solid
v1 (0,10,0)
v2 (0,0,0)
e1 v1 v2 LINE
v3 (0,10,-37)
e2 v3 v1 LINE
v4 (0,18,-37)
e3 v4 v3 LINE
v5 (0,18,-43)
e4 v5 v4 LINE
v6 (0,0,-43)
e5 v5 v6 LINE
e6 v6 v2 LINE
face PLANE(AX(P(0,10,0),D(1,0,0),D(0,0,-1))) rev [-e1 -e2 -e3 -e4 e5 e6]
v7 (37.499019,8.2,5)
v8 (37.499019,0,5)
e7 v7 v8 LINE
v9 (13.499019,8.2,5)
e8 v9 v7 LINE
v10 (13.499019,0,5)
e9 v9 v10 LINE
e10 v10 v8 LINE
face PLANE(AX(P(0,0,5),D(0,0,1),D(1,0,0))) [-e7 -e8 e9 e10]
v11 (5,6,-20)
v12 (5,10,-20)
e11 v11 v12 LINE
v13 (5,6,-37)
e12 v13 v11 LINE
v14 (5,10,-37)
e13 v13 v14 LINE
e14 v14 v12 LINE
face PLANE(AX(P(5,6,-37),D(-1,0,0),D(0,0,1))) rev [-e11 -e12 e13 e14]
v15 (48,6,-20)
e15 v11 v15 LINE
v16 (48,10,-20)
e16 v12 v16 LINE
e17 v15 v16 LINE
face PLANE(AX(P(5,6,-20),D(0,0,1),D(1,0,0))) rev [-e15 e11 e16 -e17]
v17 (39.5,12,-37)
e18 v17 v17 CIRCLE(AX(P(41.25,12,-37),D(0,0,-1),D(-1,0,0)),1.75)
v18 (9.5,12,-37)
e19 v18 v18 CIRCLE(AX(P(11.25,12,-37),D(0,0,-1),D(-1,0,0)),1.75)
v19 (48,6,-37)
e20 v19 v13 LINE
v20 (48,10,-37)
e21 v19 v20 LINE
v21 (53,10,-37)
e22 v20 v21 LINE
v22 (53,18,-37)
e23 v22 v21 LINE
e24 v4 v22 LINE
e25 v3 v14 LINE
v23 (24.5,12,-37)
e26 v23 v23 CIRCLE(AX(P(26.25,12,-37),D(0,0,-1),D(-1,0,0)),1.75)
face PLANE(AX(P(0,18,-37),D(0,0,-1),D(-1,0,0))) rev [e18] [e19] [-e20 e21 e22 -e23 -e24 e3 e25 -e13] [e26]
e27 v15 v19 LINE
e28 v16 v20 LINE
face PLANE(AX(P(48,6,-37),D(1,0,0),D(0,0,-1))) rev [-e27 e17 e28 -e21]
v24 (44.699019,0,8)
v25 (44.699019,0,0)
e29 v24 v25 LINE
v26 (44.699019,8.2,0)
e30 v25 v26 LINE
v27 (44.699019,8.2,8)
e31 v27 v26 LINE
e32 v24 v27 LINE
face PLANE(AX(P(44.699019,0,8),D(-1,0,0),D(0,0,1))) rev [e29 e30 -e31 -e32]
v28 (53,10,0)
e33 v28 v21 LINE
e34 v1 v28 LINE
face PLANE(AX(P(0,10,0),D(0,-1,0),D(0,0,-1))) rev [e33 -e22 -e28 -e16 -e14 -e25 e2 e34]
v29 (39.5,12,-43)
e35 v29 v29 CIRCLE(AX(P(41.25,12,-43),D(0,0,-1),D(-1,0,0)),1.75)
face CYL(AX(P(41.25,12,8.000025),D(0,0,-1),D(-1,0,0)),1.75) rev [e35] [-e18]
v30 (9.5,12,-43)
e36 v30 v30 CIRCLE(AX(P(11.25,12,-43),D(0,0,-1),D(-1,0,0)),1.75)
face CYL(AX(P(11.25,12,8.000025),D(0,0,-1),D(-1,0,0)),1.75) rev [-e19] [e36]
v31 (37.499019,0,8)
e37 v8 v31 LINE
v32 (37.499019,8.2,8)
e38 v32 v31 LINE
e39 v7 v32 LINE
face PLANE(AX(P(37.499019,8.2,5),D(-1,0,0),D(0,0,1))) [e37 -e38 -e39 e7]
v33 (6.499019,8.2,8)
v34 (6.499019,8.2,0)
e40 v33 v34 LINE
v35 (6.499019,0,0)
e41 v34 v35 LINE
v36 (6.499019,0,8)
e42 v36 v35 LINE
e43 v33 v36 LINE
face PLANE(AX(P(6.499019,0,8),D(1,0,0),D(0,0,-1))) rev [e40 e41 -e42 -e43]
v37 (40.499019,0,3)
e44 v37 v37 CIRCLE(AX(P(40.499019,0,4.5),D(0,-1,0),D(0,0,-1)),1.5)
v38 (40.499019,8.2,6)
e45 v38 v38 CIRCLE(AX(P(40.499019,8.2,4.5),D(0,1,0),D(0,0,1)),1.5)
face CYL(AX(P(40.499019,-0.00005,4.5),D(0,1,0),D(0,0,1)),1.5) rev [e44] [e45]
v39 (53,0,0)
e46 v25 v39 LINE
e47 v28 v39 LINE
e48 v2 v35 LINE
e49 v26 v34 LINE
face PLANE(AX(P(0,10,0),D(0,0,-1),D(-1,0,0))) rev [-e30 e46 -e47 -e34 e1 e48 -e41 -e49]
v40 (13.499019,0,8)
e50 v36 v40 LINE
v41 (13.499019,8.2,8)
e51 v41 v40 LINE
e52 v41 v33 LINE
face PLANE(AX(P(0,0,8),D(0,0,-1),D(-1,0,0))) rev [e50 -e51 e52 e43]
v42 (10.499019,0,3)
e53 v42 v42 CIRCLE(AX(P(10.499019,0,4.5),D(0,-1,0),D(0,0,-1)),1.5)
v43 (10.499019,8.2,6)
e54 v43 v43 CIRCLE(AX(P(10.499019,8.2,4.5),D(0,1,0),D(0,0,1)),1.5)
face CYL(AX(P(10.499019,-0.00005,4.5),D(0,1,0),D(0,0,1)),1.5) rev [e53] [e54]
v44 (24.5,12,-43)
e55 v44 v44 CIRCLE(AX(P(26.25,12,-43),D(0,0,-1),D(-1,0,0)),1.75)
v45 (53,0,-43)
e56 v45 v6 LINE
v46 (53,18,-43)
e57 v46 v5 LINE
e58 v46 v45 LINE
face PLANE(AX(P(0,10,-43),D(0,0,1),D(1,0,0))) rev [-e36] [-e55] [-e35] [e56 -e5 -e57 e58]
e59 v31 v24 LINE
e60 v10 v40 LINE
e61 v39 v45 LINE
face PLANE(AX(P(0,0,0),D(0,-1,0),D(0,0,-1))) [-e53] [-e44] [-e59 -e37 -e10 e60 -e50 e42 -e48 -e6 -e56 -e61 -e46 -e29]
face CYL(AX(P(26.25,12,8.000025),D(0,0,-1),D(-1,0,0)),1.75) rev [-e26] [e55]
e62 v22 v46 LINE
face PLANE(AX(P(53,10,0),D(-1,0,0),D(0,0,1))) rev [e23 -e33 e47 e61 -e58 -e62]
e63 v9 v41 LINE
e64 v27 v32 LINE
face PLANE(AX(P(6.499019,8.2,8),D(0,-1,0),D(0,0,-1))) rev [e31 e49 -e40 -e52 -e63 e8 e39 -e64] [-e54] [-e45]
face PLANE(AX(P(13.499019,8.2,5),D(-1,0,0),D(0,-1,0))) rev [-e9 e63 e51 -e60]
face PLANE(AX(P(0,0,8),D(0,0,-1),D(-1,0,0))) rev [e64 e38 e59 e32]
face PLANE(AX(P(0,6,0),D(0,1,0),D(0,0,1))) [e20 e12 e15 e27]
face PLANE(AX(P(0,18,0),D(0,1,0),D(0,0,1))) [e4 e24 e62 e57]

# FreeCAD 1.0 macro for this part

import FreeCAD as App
import Part
import Sketcher

V = App.Vector


def add_polygon(sketch, points):
    """Adds a closed chain of lines whose ends are joined by coincident constraints."""
    first, n = sketch.GeometryCount, len(points)
    for a, b in zip(points, points[1:] + points[:1]):
        sketch.addGeometry(Part.LineSegment(App.Vector(*a, 0), App.Vector(*b, 0)), False)
    for i in range(n):
        sketch.addConstraint(Sketcher.Constraint("Coincident", first + i, 2, first + (i + 1) % n, 1))

doc = App.newDocument("Part")
body = doc.addObject("PartDesign::Body", "Body")

# Sketch on XZ plane
sketch1 = doc.addObject("Sketcher::SketchObject", "Sketch")
body.addObject(sketch1)
sketch1.AttachmentSupport = (doc.XZ_Plane, [""])
sketch1.MapMode = "FlatFace"
add_polygon(sketch1, [(0, -43), (0, 0), (53, 0), (53, -43)])  # lines 0-3
sketch1.addConstraint([
    Sketcher.Constraint("Vertical", 0),
    Sketcher.Constraint("Horizontal", 1),
    Sketcher.Constraint("Vertical", 2),
    Sketcher.Constraint("Horizontal", 3),
    Sketcher.Constraint("Coincident", 0, 2, -1, 1),
    Sketcher.Constraint("DistanceX", 1, 1, 1, 2, 53.0),
    Sketcher.Constraint("DistanceY", 0, 1, 0, 2, 43.0),
])
pad1 = doc.addObject("PartDesign::Pad", "Pad")
body.addObject(pad1)
pad1.Profile = sketch1
pad1.Length = 10
pad1.Reversed = True

# Sketch on XY plane
sketch2 = doc.addObject("Sketcher::SketchObject", "Sketch001")
body.addObject(sketch2)
sketch2.AttachmentSupport = (doc.XY_Plane, [""])
sketch2.MapMode = "FlatFace"
add_polygon(sketch2, [(6.499019, 8.2), (6.499019, 0), (44.699019, 0), (44.699019, 8.2)])  # lines 0-3
sketch2.addConstraint([
    Sketcher.Constraint("Vertical", 0),
    Sketcher.Constraint("Horizontal", 1),
    Sketcher.Constraint("Vertical", 2),
    Sketcher.Constraint("Horizontal", 3),
    Sketcher.Constraint("PointOnObject", 0, 2, -1),
    Sketcher.Constraint("DistanceX", 1, 1, 1, 2, 38.2),
    Sketcher.Constraint("DistanceY", 0, 2, 0, 1, 8.2),
    Sketcher.Constraint("DistanceX", -1, 1, 0, 2, 6.499019),
])
pad2 = doc.addObject("PartDesign::Pad", "Pad001")
body.addObject(pad2)
pad2.Profile = sketch2
pad2.Length = 8

# Sketch on XY plane
sketch3 = doc.addObject("Sketcher::SketchObject", "Sketch002")
body.addObject(sketch3)
sketch3.AttachmentSupport = (doc.XY_Plane, [""])
sketch3.MapMode = "FlatFace"
sketch3.AttachmentOffset = App.Placement(V(0, 0, 8), App.Rotation())
add_polygon(sketch3, [(13.499019, 8.2), (13.499019, 0), (37.499019, 0), (37.499019, 8.2)])  # lines 0-3
sketch3.addConstraint([
    Sketcher.Constraint("Vertical", 0),
    Sketcher.Constraint("Horizontal", 1),
    Sketcher.Constraint("Vertical", 2),
    Sketcher.Constraint("Horizontal", 3),
    Sketcher.Constraint("PointOnObject", 0, 2, -1),
    Sketcher.Constraint("DistanceX", 1, 1, 1, 2, 24.0),
    Sketcher.Constraint("DistanceY", 0, 2, 0, 1, 8.2),
    Sketcher.Constraint("DistanceX", -1, 1, 0, 2, 13.499019),
])
pocket1 = doc.addObject("PartDesign::Pocket", "Pocket")
body.addObject(pocket1)
pocket1.Profile = sketch3
pocket1.Length = 3

# Sketch on XZ plane
sketch4 = doc.addObject("Sketcher::SketchObject", "Sketch003")
body.addObject(sketch4)
sketch4.AttachmentSupport = (doc.XZ_Plane, [""])
sketch4.MapMode = "FlatFace"
sketch4.AttachmentOffset = App.Placement(V(0, 0, -8.2), App.Rotation())
sketch4.addGeometry([
    Part.Circle(V(40.499019, 4.5, 0), V(0, 0, 1), 1.5),
    Part.Circle(V(10.499019, 4.5, 0), V(0, 0, 1), 1.5),
], False)
sketch4.addConstraint([
    Sketcher.Constraint("Equal", 0, 1),
    Sketcher.Constraint("Horizontal", 0, 3, 1, 3),
    Sketcher.Constraint("Diameter", 0, 3.0),
    Sketcher.Constraint("DistanceX", 1, 3, 0, 3, 30.0),
    Sketcher.Constraint("DistanceY", -1, 1, 0, 3, 4.5),
    Sketcher.Constraint("DistanceX", -1, 1, 0, 3, 40.499019),
])
pocket2 = doc.addObject("PartDesign::Pocket", "Pocket001")
body.addObject(pocket2)
pocket2.Profile = sketch4
pocket2.Type = "ThroughAll"
pocket2.Reversed = True

# Sketch on XZ plane
sketch5 = doc.addObject("Sketcher::SketchObject", "Sketch004")
body.addObject(sketch5)
sketch5.AttachmentSupport = (doc.XZ_Plane, [""])
sketch5.MapMode = "FlatFace"
sketch5.AttachmentOffset = App.Placement(V(0, 0, -10), App.Rotation())
add_polygon(sketch5, [(0, -43), (0, -37), (53, -37), (53, -43)])  # lines 0-3
sketch5.addConstraint([
    Sketcher.Constraint("Vertical", 0),
    Sketcher.Constraint("Horizontal", 1),
    Sketcher.Constraint("Vertical", 2),
    Sketcher.Constraint("Horizontal", 3),
    Sketcher.Constraint("PointOnObject", 0, 2, -2),
    Sketcher.Constraint("DistanceX", 1, 1, 1, 2, 53.0),
    Sketcher.Constraint("DistanceY", 0, 1, 0, 2, 6.0),
    Sketcher.Constraint("DistanceY", 0, 2, -1, 1, 37.0),
])
pad3 = doc.addObject("PartDesign::Pad", "Pad002")
body.addObject(pad3)
pad3.Profile = sketch5
pad3.Length = 8
pad3.Reversed = True

# Sketch on XY plane
sketch6 = doc.addObject("Sketcher::SketchObject", "Sketch005")
body.addObject(sketch6)
sketch6.AttachmentSupport = (doc.XY_Plane, [""])
sketch6.MapMode = "FlatFace"
sketch6.AttachmentOffset = App.Placement(V(0, 0, -43), App.Rotation())
sketch6.addGeometry([
    Part.Circle(V(41.25, 12, 0), V(0, 0, 1), 1.75),
    Part.Circle(V(26.25, 12, 0), V(0, 0, 1), 1.75),
    Part.Circle(V(11.25, 12, 0), V(0, 0, 1), 1.75),
], False)
sketch6.addConstraint([
    Sketcher.Constraint("Equal", 0, 1),
    Sketcher.Constraint("Equal", 1, 2),
    Sketcher.Constraint("Horizontal", 0, 3, 1, 3),
    Sketcher.Constraint("Horizontal", 1, 3, 2, 3),
    Sketcher.Constraint("Diameter", 0, 3.5),
    Sketcher.Constraint("DistanceY", -1, 1, 0, 3, 12.0),
    Sketcher.Constraint("DistanceX", 1, 3, 0, 3, 15.0),
    Sketcher.Constraint("DistanceX", 2, 3, 1, 3, 15.0),
    Sketcher.Constraint("DistanceX", -1, 1, 0, 3, 41.25),
])
pocket3 = doc.addObject("PartDesign::Pocket", "Pocket002")
body.addObject(pocket3)
pocket3.Profile = sketch6
pocket3.Type = "ThroughAll"
pocket3.Reversed = True

# Sketch on XZ plane
sketch7 = doc.addObject("Sketcher::SketchObject", "Sketch006")
body.addObject(sketch7)
sketch7.AttachmentSupport = (doc.XZ_Plane, [""])
sketch7.MapMode = "FlatFace"
sketch7.AttachmentOffset = App.Placement(V(0, 0, -10), App.Rotation())
add_polygon(sketch7, [(5, -37), (5, -20), (48, -20), (48, -37)])  # lines 0-3
sketch7.addConstraint([
    Sketcher.Constraint("Vertical", 0),
    Sketcher.Constraint("Horizontal", 1),
    Sketcher.Constraint("Vertical", 2),
    Sketcher.Constraint("Horizontal", 3),
    Sketcher.Constraint("DistanceX", 1, 1, 1, 2, 43.0),
    Sketcher.Constraint("DistanceY", 0, 1, 0, 2, 17.0),
    Sketcher.Constraint("DistanceX", -1, 1, 0, 2, 5.0),
    Sketcher.Constraint("DistanceY", 0, 2, -1, 1, 20.0),
])
pocket4 = doc.addObject("PartDesign::Pocket", "Pocket003")
body.addObject(pocket4)
pocket4.Profile = sketch7
pocket4.Length = 4
pocket4.Reversed = True

doc.recompute()
